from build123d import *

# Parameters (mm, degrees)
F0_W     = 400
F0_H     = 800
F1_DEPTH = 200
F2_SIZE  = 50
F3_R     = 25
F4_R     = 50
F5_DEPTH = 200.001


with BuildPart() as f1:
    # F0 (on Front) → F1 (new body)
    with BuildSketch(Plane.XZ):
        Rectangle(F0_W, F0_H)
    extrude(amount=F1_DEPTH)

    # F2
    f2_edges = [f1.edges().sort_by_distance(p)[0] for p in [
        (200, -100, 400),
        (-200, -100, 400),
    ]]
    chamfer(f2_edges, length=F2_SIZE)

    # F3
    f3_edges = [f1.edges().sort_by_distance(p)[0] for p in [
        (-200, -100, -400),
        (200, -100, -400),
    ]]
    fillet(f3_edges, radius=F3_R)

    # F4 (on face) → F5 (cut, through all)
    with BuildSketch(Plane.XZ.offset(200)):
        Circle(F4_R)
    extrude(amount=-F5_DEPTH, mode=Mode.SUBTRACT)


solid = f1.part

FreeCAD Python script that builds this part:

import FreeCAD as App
import Part
import Sketcher
from FreeCAD import Vector
Q = App.Units.Quantity


def edges_at(feature, points):
    """Names of the edges that pass closest to the given points."""
    edges = feature.Shape.Edges
    near = lambda p: min(range(len(edges)), key=lambda i: edges[i].distToShape(Part.Vertex(*p))[0])
    return sorted({f"Edge{near(p) + 1}" for p in points})


def add_polygon(sketch, points):
    """Adds a closed chain of lines whose ends are joined by coincident constraints."""
    first, n = sketch.GeometryCount, len(points)
    for a, b in zip(points, points[1:] + points[:1]):
        sketch.addGeometry(Part.LineSegment(App.Vector(*a, 0), App.Vector(*b, 0)), False)
    for i in range(n):
        sketch.addConstraint(Sketcher.Constraint("Coincident", first + i, 2, first + (i + 1) % n, 1))

doc = App.newDocument("Part")
params = doc.addObject("Spreadsheet::Sheet", "Params")
for row, (alias, value) in enumerate([
    ("sketch1_width", "400 mm"),
    ("sketch1_height", "800 mm"),
    ("pad1_length", "200 mm"),
    ("chamfer_size", "50 mm"),
    ("fillet_radius", "25 mm"),
    ("sketch2_diameter", "100 mm"),
], start=1):
    params.set(f"A{row}", alias)
    params.set(f"B{row}", "=" + value)
    params.setAlias(f"B{row}", alias)

body = doc.addObject("PartDesign::Body", "Body")

sketch1 = body.newObject("Sketcher::SketchObject", "Sketch")
sketch1.AttachmentSupport = (doc.getObject("XZ_Plane"), [""])
sketch1.MapMode = "FlatFace"
add_polygon(sketch1, [(-200, 400), (-200, -400), (200, -400), (200, 400)])
sketch1.addConstraint([
    Sketcher.Constraint("Vertical", 0),
    Sketcher.Constraint("Horizontal", 1),
    Sketcher.Constraint("Vertical", 2),
    Sketcher.Constraint("Horizontal", 3),
    Sketcher.Constraint("Symmetric", 0, 2, 2, 2, -1, 1),
    Sketcher.Constraint("DistanceX", 1, 1, 1, 2, Q("400 mm")),
    Sketcher.Constraint("DistanceY", 0, 2, 0, 1, Q("800 mm")),
])
sketch1.setExpression("Constraints[9]", "Params.sketch1_width")
sketch1.setExpression("Constraints[10]", "Params.sketch1_height")
pad1 = body.newObject("PartDesign::Pad", "Pad")
pad1.Profile = sketch1
pad1.setExpression("Length", "Params.pad1_length")
doc.recompute()

chamfer = body.newObject("PartDesign::Chamfer", "Chamfer")
chamfer.Base = (pad1, edges_at(pad1, [(200, -100, 400), (-200, -100, 400)]))
chamfer.setExpression("Size", "Params.chamfer_size")
doc.recompute()

fillet = body.newObject("PartDesign::Fillet", "Fillet")
fillet.Base = (chamfer, edges_at(chamfer, [(-200, -100, -400), (200, -100, -400)]))
fillet.setExpression("Radius", "Params.fillet_radius")

sketch2 = body.newObject("Sketcher::SketchObject", "Sketch001")
sketch2.AttachmentSupport = (doc.getObject("XZ_Plane"), [""])
sketch2.MapMode = "FlatFace"
sketch2.AttachmentOffset = App.Placement(Vector(0, 0, 200), App.Rotation())
sketch2.addGeometry(Part.Circle(Vector(0, 0, 0), Vector(0, 0, 1), 50), False)
sketch2.addConstraint([
    Sketcher.Constraint("Coincident", 0, 3, -1, 1),
    Sketcher.Constraint("Diameter", 0, Q("100 mm")),
])
sketch2.setExpression("Constraints[1]", "Params.sketch2_diameter")
pocket1 = body.newObject("PartDesign::Pocket", "Pocket")
pocket1.Profile = sketch2
pocket1.Type = "ThroughAll"

doc.recompute()
